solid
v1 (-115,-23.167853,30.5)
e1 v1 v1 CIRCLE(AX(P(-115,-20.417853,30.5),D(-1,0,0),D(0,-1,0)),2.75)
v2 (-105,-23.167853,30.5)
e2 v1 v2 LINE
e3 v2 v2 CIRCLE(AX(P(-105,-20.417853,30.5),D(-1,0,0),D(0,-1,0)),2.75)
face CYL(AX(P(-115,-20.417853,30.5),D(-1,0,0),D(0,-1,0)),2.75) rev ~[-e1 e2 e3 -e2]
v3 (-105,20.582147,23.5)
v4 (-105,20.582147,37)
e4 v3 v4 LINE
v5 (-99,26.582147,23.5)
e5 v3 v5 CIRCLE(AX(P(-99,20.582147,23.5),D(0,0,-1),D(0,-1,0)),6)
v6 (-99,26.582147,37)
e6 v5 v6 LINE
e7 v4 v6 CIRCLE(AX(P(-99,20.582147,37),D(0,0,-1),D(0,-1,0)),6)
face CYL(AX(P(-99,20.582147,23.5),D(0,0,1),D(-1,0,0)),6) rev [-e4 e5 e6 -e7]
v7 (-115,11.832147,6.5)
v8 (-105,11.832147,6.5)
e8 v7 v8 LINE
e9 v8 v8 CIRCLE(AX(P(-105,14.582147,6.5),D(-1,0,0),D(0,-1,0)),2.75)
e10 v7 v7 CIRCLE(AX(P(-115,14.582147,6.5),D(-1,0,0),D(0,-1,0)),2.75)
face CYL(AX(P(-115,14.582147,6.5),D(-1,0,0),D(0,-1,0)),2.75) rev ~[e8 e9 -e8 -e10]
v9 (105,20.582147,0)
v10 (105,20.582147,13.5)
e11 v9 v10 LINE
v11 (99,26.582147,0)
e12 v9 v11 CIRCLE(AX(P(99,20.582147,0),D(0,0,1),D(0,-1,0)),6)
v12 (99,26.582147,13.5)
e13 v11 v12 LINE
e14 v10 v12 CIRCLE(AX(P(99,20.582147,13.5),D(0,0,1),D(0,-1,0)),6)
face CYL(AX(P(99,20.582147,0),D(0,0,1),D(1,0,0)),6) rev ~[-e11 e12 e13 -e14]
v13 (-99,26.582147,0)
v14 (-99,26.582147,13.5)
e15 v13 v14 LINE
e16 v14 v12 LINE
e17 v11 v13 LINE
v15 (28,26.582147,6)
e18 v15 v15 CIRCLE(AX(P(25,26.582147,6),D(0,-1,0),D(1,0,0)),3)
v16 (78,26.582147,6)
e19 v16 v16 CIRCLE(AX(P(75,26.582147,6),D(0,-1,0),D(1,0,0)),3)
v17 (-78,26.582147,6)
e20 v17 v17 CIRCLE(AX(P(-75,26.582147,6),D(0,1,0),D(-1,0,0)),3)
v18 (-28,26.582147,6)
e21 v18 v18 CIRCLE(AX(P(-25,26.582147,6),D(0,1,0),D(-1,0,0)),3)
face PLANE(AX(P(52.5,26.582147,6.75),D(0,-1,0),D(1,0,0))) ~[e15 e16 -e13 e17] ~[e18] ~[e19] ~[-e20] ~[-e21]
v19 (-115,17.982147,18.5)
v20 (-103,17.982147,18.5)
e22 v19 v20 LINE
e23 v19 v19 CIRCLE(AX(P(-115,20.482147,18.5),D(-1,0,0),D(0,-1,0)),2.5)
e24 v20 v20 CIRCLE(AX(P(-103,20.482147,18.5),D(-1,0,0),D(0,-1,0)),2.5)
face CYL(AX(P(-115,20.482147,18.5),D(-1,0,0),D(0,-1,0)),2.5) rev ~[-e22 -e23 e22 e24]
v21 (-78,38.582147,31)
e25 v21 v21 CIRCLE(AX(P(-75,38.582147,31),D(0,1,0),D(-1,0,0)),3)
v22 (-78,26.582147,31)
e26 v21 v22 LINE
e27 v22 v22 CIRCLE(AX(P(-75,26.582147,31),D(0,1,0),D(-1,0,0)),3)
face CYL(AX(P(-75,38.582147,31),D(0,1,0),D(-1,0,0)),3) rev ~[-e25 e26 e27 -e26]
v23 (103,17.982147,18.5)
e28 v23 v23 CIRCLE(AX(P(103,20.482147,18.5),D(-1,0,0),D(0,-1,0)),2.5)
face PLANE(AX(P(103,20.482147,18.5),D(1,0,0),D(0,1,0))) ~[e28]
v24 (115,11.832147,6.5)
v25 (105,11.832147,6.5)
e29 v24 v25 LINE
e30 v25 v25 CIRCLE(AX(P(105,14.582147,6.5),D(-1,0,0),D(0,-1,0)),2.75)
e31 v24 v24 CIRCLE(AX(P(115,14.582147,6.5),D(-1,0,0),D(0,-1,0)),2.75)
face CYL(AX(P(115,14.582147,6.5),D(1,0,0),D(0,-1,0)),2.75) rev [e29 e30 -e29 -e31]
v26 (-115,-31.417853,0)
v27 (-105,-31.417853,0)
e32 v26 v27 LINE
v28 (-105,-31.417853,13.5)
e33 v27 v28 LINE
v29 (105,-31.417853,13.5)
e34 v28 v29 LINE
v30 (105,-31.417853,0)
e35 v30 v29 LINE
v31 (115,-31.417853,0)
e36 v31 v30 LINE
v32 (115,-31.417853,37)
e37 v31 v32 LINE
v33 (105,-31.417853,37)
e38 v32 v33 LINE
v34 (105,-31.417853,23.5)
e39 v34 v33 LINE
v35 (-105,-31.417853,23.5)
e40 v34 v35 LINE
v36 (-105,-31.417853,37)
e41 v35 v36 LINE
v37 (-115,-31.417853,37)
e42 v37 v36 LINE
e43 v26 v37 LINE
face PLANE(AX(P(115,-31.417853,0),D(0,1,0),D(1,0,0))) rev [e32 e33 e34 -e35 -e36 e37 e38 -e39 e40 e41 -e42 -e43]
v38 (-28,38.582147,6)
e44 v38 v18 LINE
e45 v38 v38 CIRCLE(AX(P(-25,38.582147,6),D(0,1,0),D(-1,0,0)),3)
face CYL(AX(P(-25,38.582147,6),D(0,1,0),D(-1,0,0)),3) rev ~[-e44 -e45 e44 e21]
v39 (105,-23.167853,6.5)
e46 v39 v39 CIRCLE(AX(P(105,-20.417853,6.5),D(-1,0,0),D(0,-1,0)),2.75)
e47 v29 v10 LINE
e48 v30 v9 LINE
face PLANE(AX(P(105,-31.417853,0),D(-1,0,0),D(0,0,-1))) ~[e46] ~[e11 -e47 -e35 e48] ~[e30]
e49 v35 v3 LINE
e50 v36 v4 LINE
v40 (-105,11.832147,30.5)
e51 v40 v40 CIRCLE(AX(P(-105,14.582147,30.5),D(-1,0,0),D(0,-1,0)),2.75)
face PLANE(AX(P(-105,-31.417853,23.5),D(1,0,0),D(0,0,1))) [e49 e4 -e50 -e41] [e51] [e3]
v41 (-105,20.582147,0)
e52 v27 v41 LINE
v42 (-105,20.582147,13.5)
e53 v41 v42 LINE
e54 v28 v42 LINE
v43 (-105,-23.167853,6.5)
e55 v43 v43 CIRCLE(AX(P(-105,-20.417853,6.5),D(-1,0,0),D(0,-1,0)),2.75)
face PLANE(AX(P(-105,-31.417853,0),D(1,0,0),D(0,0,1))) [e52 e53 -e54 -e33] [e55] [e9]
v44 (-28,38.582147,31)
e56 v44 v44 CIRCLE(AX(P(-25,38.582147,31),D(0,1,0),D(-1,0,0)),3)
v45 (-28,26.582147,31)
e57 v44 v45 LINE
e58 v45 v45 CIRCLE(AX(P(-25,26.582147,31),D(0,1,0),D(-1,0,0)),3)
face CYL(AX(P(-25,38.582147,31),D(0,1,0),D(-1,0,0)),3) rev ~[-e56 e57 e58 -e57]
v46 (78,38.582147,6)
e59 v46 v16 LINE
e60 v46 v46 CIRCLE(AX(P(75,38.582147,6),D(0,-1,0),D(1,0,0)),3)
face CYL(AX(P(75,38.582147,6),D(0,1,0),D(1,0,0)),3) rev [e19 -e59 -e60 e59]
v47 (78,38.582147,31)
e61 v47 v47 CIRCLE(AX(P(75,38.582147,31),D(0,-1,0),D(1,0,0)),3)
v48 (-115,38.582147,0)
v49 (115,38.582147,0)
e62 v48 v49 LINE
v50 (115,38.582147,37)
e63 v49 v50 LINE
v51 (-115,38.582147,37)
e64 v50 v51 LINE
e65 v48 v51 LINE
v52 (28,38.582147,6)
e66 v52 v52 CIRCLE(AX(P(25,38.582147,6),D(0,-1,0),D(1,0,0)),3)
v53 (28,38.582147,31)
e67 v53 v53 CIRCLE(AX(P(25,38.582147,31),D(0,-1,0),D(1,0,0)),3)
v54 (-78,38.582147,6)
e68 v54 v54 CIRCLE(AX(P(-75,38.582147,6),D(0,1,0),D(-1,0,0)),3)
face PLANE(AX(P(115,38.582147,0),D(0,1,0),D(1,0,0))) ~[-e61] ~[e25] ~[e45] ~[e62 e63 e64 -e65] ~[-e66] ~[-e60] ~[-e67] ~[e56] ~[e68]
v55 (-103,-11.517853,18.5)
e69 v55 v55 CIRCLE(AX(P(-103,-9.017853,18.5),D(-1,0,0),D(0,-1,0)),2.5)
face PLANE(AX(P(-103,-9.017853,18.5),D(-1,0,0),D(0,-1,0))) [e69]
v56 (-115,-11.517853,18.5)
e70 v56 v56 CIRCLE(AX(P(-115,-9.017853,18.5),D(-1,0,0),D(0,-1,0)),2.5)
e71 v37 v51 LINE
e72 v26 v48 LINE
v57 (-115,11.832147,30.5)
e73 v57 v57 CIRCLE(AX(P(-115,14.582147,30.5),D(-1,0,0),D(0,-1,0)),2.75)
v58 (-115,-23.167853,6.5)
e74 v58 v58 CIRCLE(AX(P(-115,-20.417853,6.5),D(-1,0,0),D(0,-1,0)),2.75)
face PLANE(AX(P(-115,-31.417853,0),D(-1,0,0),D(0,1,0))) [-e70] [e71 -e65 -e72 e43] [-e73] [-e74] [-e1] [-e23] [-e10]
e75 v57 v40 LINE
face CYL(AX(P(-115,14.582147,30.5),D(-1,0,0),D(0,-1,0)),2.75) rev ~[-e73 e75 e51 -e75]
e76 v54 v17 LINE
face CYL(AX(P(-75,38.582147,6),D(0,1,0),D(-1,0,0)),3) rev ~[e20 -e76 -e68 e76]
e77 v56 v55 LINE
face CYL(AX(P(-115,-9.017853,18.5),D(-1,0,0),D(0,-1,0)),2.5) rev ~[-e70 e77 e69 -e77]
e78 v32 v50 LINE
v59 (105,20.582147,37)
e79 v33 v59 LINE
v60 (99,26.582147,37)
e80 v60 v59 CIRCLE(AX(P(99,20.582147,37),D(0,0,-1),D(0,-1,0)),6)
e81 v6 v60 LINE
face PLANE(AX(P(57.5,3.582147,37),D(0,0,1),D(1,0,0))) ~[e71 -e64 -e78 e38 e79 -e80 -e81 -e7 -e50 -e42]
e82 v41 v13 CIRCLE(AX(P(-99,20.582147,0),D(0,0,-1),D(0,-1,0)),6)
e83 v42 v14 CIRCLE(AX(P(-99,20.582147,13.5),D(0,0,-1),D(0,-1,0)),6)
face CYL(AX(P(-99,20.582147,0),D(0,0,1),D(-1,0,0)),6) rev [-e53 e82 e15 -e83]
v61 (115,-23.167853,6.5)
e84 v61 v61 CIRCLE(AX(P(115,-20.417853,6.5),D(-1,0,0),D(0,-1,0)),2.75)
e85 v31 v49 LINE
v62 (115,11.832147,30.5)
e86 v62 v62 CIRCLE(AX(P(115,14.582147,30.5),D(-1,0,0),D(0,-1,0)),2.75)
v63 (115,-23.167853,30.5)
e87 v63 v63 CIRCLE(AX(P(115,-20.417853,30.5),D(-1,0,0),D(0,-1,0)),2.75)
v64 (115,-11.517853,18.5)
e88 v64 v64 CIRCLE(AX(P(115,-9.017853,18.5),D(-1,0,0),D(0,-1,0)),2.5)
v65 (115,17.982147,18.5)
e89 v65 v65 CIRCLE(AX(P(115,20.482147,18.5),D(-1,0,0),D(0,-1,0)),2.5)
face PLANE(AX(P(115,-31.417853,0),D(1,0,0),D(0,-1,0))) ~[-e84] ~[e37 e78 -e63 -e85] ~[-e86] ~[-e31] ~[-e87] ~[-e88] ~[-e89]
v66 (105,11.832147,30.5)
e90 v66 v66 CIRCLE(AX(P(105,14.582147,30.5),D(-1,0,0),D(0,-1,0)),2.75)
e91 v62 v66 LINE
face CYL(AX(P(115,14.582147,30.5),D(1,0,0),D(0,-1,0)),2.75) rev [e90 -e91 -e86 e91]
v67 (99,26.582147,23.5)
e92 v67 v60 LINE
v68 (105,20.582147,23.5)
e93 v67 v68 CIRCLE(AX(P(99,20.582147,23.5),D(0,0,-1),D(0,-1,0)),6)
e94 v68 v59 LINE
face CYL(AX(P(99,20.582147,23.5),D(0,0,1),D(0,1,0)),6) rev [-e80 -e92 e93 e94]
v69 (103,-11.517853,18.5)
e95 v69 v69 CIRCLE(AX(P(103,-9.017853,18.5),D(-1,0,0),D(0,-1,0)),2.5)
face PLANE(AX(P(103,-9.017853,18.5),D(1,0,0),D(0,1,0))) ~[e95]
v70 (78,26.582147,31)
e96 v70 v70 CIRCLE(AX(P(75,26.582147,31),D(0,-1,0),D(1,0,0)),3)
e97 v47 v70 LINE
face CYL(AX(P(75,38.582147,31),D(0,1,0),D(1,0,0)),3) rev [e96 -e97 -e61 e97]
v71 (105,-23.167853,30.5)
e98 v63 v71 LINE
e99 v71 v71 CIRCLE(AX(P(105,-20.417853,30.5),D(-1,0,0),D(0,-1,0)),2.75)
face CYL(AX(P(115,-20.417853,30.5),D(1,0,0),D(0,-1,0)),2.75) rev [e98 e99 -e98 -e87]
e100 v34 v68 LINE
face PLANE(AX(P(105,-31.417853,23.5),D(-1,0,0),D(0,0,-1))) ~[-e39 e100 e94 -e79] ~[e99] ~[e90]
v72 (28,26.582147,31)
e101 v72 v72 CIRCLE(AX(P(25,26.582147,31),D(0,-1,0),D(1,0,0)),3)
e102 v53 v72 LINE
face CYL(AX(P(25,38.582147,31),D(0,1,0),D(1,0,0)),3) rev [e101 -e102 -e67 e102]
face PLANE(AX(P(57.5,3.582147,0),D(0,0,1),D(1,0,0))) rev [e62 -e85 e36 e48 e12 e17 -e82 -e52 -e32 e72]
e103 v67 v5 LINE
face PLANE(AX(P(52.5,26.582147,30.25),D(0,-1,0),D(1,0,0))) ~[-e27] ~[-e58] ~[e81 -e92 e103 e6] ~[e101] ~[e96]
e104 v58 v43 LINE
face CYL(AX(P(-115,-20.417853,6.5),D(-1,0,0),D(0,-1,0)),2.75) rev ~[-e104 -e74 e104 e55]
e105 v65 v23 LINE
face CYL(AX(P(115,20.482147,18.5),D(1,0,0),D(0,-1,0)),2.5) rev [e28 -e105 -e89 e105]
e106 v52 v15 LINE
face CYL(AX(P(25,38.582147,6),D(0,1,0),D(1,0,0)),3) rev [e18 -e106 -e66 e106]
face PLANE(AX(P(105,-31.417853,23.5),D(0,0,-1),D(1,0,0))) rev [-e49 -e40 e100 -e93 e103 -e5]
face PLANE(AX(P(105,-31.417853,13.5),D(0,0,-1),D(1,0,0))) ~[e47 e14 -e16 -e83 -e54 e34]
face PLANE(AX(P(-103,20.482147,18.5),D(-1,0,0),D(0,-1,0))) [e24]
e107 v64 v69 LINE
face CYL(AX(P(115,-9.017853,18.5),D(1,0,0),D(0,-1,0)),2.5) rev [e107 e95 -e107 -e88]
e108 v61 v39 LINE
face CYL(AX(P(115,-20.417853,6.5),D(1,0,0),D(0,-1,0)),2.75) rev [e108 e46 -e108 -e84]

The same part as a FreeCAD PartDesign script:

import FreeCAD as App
import Part
import Sketcher
from FreeCAD import Vector


def edges_at(feature, points):
    """Names of the edges that pass closest to the given points."""
    edges = feature.Shape.Edges
    near = lambda p: min(range(len(edges)), key=lambda i: edges[i].distToShape(Part.Vertex(*p))[0])
    return sorted({f"Edge{near(p) + 1}" for p in points})


def add_polygon(sketch, points):
    """Adds a closed chain of lines whose ends are joined by coincident constraints."""
    first, n = sketch.GeometryCount, len(points)
    for a, b in zip(points, points[1:] + points[:1]):
        sketch.addGeometry(Part.LineSegment(App.Vector(*a, 0), App.Vector(*b, 0)), False)
    for i in range(n):
        sketch.addConstraint(Sketcher.Constraint("Coincident", first + i, 2, first + (i + 1) % n, 1))

doc = App.newDocument("Part")
params = doc.addObject("Spreadsheet::Sheet", "Params")
for row, (alias, value) in enumerate([
    ("sketch1_width", "115 mm"),
    ("sketch1_height", "70 mm"),
    ("pad1_length", "37 mm"),
    ("sketch2_diameter", "5 mm"),
    ("sketch2_diameter2", "5.5 mm"),
    ("pocket1_length", "12 mm"),
    ("sketch3_width", "105 mm"),
    ("sketch3_height", "13.5 mm"),
    ("pocket2_length", "58 mm"),
    ("sketch4_diameter", "6 mm"),
    ("fillet_radius", "6 mm"),
], start=1):
    params.set(f"A{row}", alias)
    params.set(f"B{row}", "=" + value)
    params.setAlias(f"B{row}", alias)

body = doc.addObject("PartDesign::Body", "Body")

sketch1 = doc.addObject("Sketcher::SketchObject", "Sketch")
body.addObject(sketch1)
sketch1.AttachmentSupport = (doc.XY_Plane, [""])
sketch1.MapMode = "FlatFace"
add_polygon(sketch1, [(-115, 39), (-115, -31), (0, -31), (0, 39)])
sketch1.addConstraint(Sketcher.Constraint("Vertical", 0))
sketch1.addConstraint(Sketcher.Constraint("Horizontal", 1))
sketch1.addConstraint(Sketcher.Constraint("Vertical", 2))
sketch1.addConstraint(Sketcher.Constraint("Horizontal", 3))
sketch1.addConstraint(Sketcher.Constraint("PointOnObject", 1, 2, -2))
sketch1.addConstraint(Sketcher.Constraint("DistanceX", 1, 1, 1, 2, 115.0))
sketch1.addConstraint(Sketcher.Constraint("DistanceY", 0, 2, 0, 1, 70.0))
sketch1.addConstraint(Sketcher.Constraint("DistanceY", 0, 2, -1, 1, 31.417853))
sketch1.setExpression("Constraints[9]", "Params.sketch1_width")
sketch1.setExpression("Constraints[10]", "Params.sketch1_height")
pad1 = doc.addObject("PartDesign::Pad", "Pad")
body.addObject(pad1)
pad1.Profile = sketch1
pad1.setExpression("Length", "Params.pad1_length")

sketch2 = doc.addObject("Sketcher::SketchObject", "Sketch001")
body.addObject(sketch2)
sketch2.AttachmentSupport = (doc.YZ_Plane, [""])
sketch2.MapMode = "FlatFace"
sketch2.AttachmentOffset = App.Placement(Vector(0, 0, -115), App.Rotation())
sketch2.addGeometry(Part.Circle(Vector(14.6, 30.5, 0), Vector(0, 0, 1), 2.8), False)
sketch2.addGeometry(Part.Circle(Vector(14.6, 6.5, 0), Vector(0, 0, 1), 2.8), False)
sketch2.addGeometry(Part.Circle(Vector(-20.4, 6.5, 0), Vector(0, 0, 1), 2.8), False)
sketch2.addGeometry(Part.Circle(Vector(-20.4, 30.5, 0), Vector(0, 0, 1), 2.8), False)
sketch2.addGeometry(Part.Circle(Vector(20.5, 18.5, 0), Vector(0, 0, 1), 2.5), False)
sketch2.addGeometry(Part.Circle(Vector(-9, 18.5, 0), Vector(0, 0, 1), 2.5), False)
sketch2.addConstraint(Sketcher.Constraint("Equal", 0, 1))
sketch2.addConstraint(Sketcher.Constraint("Equal", 1, 2))
sketch2.addConstraint(Sketcher.Constraint("Equal", 2, 3))
sketch2.addConstraint(Sketcher.Constraint("Equal", 4, 5))
sketch2.addConstraint(Sketcher.Constraint("Horizontal", 1, 3, 2, 3))
sketch2.addConstraint(Sketcher.Constraint("Horizontal", 0, 3, 3, 3))
sketch2.addConstraint(Sketcher.Constraint("Horizontal", 4, 3, 5, 3))
sketch2.addConstraint(Sketcher.Constraint("Vertical", 0, 3, 1, 3))
sketch2.addConstraint(Sketcher.Constraint("Vertical", 2, 3, 3, 3))
sketch2.addConstraint(Sketcher.Constraint("Diameter", 4, 5.0))
sketch2.addConstraint(Sketcher.Constraint("Diameter", 0, 5.5))
sketch2.addConstraint(Sketcher.Constraint("DistanceY", 1, 3, 0, 3, 24.0))
sketch2.addConstraint(Sketcher.Constraint("DistanceX", 2, 3, 1, 3, 35.0))
sketch2.addConstraint(Sketcher.Constraint("DistanceY", 4, 3, 0, 3, 12.0))
sketch2.addConstraint(Sketcher.Constraint("DistanceY", -1, 1, 0, 3, 30.5))
sketch2.addConstraint(Sketcher.Constraint("DistanceX", 0, 3, 4, 3, 5.9))
sketch2.addConstraint(Sketcher.Constraint("DistanceX", 2, 3, 5, 3, 11.4))
sketch2.addConstraint(Sketcher.Constraint("DistanceX", -1, 1, 0, 3, 14.582147))
sketch2.setExpression("Constraints[9]", "Params.sketch2_diameter")
sketch2.setExpression("Constraints[10]", "Params.sketch2_diameter2")
pocket1 = doc.addObject("PartDesign::Pocket", "Pocket")
body.addObject(pocket1)
pocket1.Profile = sketch2
pocket1.setExpression("Length", "Params.pocket1_length")
pocket1.Reversed = True

sketch3 = doc.addObject("Sketcher::SketchObject", "Sketch002")
body.addObject(sketch3)
sketch3.AttachmentSupport = (doc.XZ_Plane, [""])
sketch3.MapMode = "FlatFace"
sketch3.AttachmentOffset = App.Placement(Vector(0, 0, 31.417853), App.Rotation())
add_polygon(sketch3, [(-105, 14), (-105, 0), (0, 0), (0, 14)])
add_polygon(sketch3, [(-105, 37), (-105, 24), (0, 24), (0, 37)])
sketch3.addConstraint(Sketcher.Constraint("Vertical", 0))
sketch3.addConstraint(Sketcher.Constraint("Horizontal", 1))
sketch3.addConstraint(Sketcher.Constraint("Vertical", 2))
sketch3.addConstraint(Sketcher.Constraint("Horizontal", 3))
sketch3.addConstraint(Sketcher.Constraint("Vertical", 4))
sketch3.addConstraint(Sketcher.Constraint("Horizontal", 5))
sketch3.addConstraint(Sketcher.Constraint("Vertical", 6))
sketch3.addConstraint(Sketcher.Constraint("Horizontal", 7))
sketch3.addConstraint(Sketcher.Constraint("Coincident", 1, 2, -1, 1))
sketch3.addConstraint(Sketcher.Constraint("PointOnObject", 5, 2, -2))
sketch3.addConstraint(Sketcher.Constraint("Vertical", 3, 2, 4, 2))
sketch3.addConstraint(Sketcher.Constraint("Equal", 2, 4))
sketch3.addConstraint(Sketcher.Constraint("DistanceX", 1, 1, 1, 2, 105.0))
sketch3.addConstraint(Sketcher.Constraint("DistanceY", 0, 2, 0, 1, 13.5))
sketch3.addConstraint(Sketcher.Constraint("DistanceY", -1, 1, 6, 2, 37.0))
sketch3.setExpression("Constraints[20]", "Params.sketch3_width")
sketch3.setExpression("Constraints[21]", "Params.sketch3_height")
pocket2 = doc.addObject("PartDesign::Pocket", "Pocket001")
body.addObject(pocket2)
pocket2.Profile = sketch3
pocket2.setExpression("Length", "Params.pocket2_length")

sketch4 = doc.addObject("Sketcher::SketchObject", "Sketch003")
body.addObject(sketch4)
sketch4.AttachmentSupport = (doc.XZ_Plane, [""])
sketch4.MapMode = "FlatFace"
sketch4.AttachmentOffset = App.Placement(Vector(0, 0, -38.582147), App.Rotation())
sketch4.addGeometry(Part.Circle(Vector(-75, 6, 0), Vector(0, 0, 1), 3), False)
sketch4.addGeometry(Part.Circle(Vector(-75, 31, 0), Vector(0, 0, 1), 3), False)
sketch4.addGeometry(Part.Circle(Vector(-25, 31, 0), Vector(0, 0, 1), 3), False)
sketch4.addGeometry(Part.Circle(Vector(-25, 6, 0), Vector(0, 0, 1), 3), False)
sketch4.addConstraint(Sketcher.Constraint("Equal", 0, 1))
sketch4.addConstraint(Sketcher.Constraint("Equal", 1, 2))
sketch4.addConstraint(Sketcher.Constraint("Equal", 2, 3))
sketch4.addConstraint(Sketcher.Constraint("Horizontal", 1, 3, 2, 3))
sketch4.addConstraint(Sketcher.Constraint("Horizontal", 0, 3, 3, 3))
sketch4.addConstraint(Sketcher.Constraint("Vertical", 0, 3, 1, 3))
sketch4.addConstraint(Sketcher.Constraint("Vertical", 2, 3, 3, 3))
sketch4.addConstraint(Sketcher.Constraint("Diameter", 0, 6.0))
sketch4.addConstraint(Sketcher.Constraint("DistanceX", 0, 3, -1, 1, 75.0))
sketch4.addConstraint(Sketcher.Constraint("DistanceY", -1, 1, 0, 3, 6.0))
sketch4.addConstraint(Sketcher.Constraint("DistanceY", -1, 1, 1, 3, 31.0))
sketch4.addConstraint(Sketcher.Constraint("DistanceX", 2, 3, -1, 1, 25.0))
sketch4.setExpression("Constraints[7]", "Params.sketch4_diameter")
pocket3 = doc.addObject("PartDesign::Pocket", "Pocket002")
body.addObject(pocket3)
pocket3.Profile = sketch4
pocket3.Type = "ThroughAll"
pocket3.Reversed = True
body2 = doc.addObject("PartDesign::Body", "Body001")
doc.recompute()

body2.BaseFeature = body
doc.recompute()

mirroring = doc.addObject("Part::Mirroring", "Mirroring")
mirroring.Source = body
mirroring.Base = Vector(0, 0, 0)
mirroring.Normal = Vector(1, 0, 0)
body3 = doc.addObject("PartDesign::Body", "Body002")
body3.BaseFeature = mirroring
boolean = doc.addObject("PartDesign::Boolean", "Boolean")
body2.addObject(boolean)
boolean.Type = "Fuse"
boolean.addObjects([body3])
doc.recompute()

fillet = doc.addObject("PartDesign::Fillet", "Fillet")
body2.addObject(fillet)
fillet.Base = (boolean, edges_at(boolean, [
    (-105, 26.582, 6.75),
    (105, 26.582, 6.75),
    (-105, 26.582, 30.25),
    (105, 26.582, 30.25),
]))
fillet.setExpression("Radius", "Params.fillet_radius")
mirroring.Visibility = False

doc.recompute()
